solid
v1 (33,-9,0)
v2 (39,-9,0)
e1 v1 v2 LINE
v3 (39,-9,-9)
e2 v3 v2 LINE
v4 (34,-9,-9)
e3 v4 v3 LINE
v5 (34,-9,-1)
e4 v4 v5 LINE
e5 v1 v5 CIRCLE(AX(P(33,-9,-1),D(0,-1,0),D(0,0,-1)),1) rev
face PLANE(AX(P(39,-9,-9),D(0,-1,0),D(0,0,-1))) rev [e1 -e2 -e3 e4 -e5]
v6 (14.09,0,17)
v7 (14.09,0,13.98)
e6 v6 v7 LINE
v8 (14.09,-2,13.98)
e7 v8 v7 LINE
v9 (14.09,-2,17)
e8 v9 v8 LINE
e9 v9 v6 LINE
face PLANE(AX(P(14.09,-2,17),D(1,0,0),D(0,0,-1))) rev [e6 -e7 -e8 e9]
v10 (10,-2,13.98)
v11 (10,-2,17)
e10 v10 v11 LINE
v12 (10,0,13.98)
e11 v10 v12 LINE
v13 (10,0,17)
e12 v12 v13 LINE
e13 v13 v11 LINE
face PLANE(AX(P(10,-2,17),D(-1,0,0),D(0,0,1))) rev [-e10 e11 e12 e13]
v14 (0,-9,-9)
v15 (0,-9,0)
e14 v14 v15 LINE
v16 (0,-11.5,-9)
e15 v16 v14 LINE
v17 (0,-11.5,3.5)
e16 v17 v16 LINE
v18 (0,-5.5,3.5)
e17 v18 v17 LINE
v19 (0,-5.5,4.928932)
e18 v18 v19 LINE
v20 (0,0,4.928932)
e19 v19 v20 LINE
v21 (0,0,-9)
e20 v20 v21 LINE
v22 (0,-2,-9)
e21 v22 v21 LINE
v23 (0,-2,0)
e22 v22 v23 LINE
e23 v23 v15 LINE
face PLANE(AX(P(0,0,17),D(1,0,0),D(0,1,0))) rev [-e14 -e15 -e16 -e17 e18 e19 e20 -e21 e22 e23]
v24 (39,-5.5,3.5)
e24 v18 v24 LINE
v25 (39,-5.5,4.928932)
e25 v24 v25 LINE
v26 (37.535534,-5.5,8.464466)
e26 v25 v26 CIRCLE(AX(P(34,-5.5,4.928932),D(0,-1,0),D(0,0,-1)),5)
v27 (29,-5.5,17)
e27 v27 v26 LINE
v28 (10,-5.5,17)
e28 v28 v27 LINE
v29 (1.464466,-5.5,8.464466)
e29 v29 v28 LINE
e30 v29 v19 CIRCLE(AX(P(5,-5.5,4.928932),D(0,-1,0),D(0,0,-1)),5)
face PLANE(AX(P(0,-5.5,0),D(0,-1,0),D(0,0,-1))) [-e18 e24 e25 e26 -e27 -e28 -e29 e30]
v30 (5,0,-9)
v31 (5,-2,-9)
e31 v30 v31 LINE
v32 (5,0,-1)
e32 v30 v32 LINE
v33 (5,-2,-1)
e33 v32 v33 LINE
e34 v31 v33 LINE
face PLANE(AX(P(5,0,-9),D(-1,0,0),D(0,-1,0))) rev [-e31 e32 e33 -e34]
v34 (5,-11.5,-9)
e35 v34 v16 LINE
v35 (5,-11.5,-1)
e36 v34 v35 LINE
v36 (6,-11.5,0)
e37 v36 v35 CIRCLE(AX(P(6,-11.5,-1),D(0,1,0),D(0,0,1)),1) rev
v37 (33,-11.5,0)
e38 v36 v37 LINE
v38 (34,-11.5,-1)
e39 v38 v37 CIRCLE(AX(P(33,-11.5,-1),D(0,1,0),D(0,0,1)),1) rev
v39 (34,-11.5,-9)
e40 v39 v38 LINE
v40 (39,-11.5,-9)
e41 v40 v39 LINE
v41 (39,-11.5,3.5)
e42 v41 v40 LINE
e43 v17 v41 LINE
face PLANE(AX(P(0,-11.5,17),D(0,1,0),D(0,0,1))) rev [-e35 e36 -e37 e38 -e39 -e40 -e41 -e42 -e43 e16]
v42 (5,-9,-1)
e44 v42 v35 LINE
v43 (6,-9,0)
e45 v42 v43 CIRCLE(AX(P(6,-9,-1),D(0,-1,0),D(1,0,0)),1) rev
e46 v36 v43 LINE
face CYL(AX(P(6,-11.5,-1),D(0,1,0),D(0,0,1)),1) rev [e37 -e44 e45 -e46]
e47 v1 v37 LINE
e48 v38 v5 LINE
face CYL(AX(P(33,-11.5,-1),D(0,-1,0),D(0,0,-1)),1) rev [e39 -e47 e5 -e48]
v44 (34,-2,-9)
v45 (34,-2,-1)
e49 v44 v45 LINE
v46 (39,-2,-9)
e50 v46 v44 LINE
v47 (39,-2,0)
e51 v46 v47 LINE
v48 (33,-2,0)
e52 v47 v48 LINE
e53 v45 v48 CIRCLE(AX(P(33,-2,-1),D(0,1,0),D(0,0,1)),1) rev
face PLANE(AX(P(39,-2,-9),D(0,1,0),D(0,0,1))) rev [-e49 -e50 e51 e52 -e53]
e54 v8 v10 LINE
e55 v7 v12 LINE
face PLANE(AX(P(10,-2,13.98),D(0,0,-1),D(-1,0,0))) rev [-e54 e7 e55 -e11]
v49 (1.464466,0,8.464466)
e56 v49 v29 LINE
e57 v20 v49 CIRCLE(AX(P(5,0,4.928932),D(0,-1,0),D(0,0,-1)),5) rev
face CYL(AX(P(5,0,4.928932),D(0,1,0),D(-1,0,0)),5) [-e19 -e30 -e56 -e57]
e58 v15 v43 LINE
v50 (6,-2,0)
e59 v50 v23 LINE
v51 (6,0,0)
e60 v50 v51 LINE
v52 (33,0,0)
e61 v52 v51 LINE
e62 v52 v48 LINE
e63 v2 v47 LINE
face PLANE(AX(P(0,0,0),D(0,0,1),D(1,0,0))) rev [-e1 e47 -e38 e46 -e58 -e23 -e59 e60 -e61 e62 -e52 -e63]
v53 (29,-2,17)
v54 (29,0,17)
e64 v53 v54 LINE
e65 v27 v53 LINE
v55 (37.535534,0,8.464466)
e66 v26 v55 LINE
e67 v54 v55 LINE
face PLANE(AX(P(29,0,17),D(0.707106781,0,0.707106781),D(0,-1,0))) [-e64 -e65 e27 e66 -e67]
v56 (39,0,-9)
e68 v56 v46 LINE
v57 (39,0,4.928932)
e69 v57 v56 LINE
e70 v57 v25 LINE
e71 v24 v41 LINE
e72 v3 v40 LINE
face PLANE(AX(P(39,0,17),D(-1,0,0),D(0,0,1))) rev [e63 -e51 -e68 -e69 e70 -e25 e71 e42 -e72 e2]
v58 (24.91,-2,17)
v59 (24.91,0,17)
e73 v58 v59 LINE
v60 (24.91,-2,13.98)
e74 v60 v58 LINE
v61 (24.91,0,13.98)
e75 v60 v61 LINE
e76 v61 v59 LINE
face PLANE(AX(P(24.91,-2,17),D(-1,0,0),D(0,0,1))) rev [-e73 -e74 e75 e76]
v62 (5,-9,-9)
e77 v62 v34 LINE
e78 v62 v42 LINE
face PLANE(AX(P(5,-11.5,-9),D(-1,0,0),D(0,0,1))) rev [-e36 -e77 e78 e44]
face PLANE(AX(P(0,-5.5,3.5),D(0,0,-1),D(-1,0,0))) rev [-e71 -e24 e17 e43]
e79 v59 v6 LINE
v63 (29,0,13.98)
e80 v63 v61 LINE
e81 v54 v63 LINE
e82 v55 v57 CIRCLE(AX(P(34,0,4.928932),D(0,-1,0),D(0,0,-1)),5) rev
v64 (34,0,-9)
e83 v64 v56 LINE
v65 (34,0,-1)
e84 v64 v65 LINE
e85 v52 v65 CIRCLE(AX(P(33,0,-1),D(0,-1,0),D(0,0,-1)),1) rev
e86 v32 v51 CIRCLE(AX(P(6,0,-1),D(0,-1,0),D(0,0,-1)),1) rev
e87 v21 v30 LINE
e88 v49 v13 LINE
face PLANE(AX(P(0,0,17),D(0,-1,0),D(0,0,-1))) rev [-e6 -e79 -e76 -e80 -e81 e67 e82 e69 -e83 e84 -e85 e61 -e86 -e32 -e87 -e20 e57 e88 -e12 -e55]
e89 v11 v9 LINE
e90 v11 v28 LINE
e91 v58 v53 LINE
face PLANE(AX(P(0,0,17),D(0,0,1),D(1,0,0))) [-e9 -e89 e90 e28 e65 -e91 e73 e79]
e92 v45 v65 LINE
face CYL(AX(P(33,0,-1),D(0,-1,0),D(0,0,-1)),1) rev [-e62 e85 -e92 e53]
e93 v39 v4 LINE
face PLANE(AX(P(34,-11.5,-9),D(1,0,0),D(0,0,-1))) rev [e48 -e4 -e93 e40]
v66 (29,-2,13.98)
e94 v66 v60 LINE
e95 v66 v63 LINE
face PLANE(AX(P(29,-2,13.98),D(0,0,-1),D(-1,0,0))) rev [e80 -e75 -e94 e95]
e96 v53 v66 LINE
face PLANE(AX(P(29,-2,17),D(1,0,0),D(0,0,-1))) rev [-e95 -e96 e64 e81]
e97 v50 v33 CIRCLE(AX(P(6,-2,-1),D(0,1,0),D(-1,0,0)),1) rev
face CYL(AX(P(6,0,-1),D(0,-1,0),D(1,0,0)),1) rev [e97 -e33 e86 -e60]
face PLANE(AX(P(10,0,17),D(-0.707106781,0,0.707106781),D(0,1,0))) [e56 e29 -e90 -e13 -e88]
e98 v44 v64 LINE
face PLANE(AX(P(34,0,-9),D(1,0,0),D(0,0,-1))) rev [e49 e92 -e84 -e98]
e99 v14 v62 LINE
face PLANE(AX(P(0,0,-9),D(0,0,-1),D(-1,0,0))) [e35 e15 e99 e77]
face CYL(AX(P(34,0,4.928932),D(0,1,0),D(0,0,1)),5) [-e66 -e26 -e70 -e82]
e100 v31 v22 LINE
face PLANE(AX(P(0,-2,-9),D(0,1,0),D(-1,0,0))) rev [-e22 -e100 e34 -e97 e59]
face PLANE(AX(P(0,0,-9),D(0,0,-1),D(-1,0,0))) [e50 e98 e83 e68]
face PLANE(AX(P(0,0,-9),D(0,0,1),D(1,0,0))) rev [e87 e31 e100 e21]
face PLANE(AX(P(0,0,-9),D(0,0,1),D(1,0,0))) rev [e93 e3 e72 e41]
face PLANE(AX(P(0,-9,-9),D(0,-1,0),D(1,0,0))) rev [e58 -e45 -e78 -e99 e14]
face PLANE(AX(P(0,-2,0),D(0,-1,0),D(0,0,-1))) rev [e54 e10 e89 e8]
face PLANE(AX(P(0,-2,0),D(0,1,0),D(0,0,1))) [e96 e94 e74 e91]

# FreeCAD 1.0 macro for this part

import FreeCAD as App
import Part
import Sketcher
from FreeCAD import Vector
Q = App.Units.Quantity


def edges_at(feature, points):
    """Names of the edges that pass closest to the given points."""
    edges = feature.Shape.Edges
    near = lambda p: min(range(len(edges)), key=lambda i: edges[i].distToShape(Part.Vertex(*p))[0])
    return sorted({f"Edge{near(p) + 1}" for p in points})


def add_polygon(sketch, points):
    """Adds a closed chain of lines whose ends are joined by coincident constraints."""
    first, n = sketch.GeometryCount, len(points)
    for a, b in zip(points, points[1:] + points[:1]):
        sketch.addGeometry(Part.LineSegment(App.Vector(*a, 0), App.Vector(*b, 0)), False)
    for i in range(n):
        sketch.addConstraint(Sketcher.Constraint("Coincident", first + i, 2, first + (i + 1) % n, 1))

doc = App.newDocument("Part")
body = doc.addObject("PartDesign::Body", "Body")

# Sketch on XY plane
sketch1 = doc.addObject("Sketcher::SketchObject", "Sketch")
body.addObject(sketch1)
sketch1.AttachmentSupport = (doc.XY_Plane, [""])
sketch1.MapMode = "FlatFace"
add_polygon(sketch1, [(0, 0), (0, -12), (39, -12), (39, 0)])  # lines 0-3
sketch1.addConstraint([
    Sketcher.Constraint("Vertical", 0),
    Sketcher.Constraint("Horizontal", 1),
    Sketcher.Constraint("Vertical", 2),
    Sketcher.Constraint("Horizontal", 3),
    Sketcher.Constraint("Coincident", 3, 2, -1, 1),
    Sketcher.Constraint("DistanceX", 1, 1, 1, 2, Q("39 mm")),
    Sketcher.Constraint("DistanceY", 0, 2, 0, 1, Q("11.5 mm")),
])
pad1 = doc.addObject("PartDesign::Pad", "Pad")
body.addObject(pad1)
pad1.Profile = sketch1
pad1.Length = 17

# Sketch on XY plane
sketch2 = doc.addObject("Sketcher::SketchObject", "Sketch001")
body.addObject(sketch2)
sketch2.AttachmentSupport = (doc.XY_Plane, [""])
sketch2.MapMode = "FlatFace"
add_polygon(sketch2, [(5, -9), (5, -11.5), (0, -11.5), (0, -9)])  # lines 0-3
add_polygon(sketch2, [(5, 0), (5, -2), (0, -2), (0, 0)])  # lines 4-7
add_polygon(sketch2, [(39, -9), (39, -11.5), (34, -11.5), (34, -9)])  # lines 8-11
add_polygon(sketch2, [(39, 0), (39, -2), (34, -2), (34, 0)])  # lines 12-15
sketch2.addConstraint([
    Sketcher.Constraint("Vertical", 0),
    Sketcher.Constraint("Horizontal", 1),
    Sketcher.Constraint("Vertical", 2),
    Sketcher.Constraint("Horizontal", 3),
    Sketcher.Constraint("Vertical", 4),
    Sketcher.Constraint("Horizontal", 5),
    Sketcher.Constraint("Vertical", 6),
    Sketcher.Constraint("Horizontal", 7),
    Sketcher.Constraint("Vertical", 8),
    Sketcher.Constraint("Horizontal", 9),
    Sketcher.Constraint("Vertical", 10),
    Sketcher.Constraint("Horizontal", 11),
    Sketcher.Constraint("Vertical", 12),
    Sketcher.Constraint("Horizontal", 13),
    Sketcher.Constraint("Vertical", 14),
    Sketcher.Constraint("Horizontal", 15),
    Sketcher.Constraint("Coincident", 6, 2, -1, 1),
    Sketcher.Constraint("PointOnObject", 1, 2, -2),
    Sketcher.Constraint("PointOnObject", 14, 2, -1),
    Sketcher.Constraint("Horizontal", 1, 2, 8, 2),
    Sketcher.Constraint("Horizontal", 3, 2, 10, 2),
    Sketcher.Constraint("Horizontal", 5, 2, 12, 2),
    Sketcher.Constraint("Vertical", 3, 2, 4, 2),
    Sketcher.Constraint("Vertical", 11, 2, 12, 2),
    Sketcher.Constraint("Vertical", 10, 2, 13, 2),
    Sketcher.Constraint("Equal", 7, 9),
    Sketcher.Constraint("DistanceX", 1, 2, 1, 1, Q("5 mm")),
    Sketcher.Constraint("DistanceY", 4, 2, 4, 1, Q("2 mm")),
    Sketcher.Constraint("DistanceY", 0, 2, 0, 1, Q("2.5 mm")),
    Sketcher.Constraint("DistanceY", 2, 2, -1, 1, Q("9 mm")),
    Sketcher.Constraint("DistanceX", -1, 1, 8, 2, Q("39 mm")),
])
pad2 = doc.addObject("PartDesign::Pad", "Pad001")
body.addObject(pad2)
pad2.Profile = sketch2
pad2.Length = 9
pad2.Reversed = True
doc.recompute()

fillet = doc.addObject("PartDesign::Fillet", "Fillet")
body.addObject(fillet)
fillet.Base = (pad2, edges_at(pad2, [(34, -1, 0)]))
fillet.Radius = 1
doc.recompute()

fillet2 = doc.addObject("PartDesign::Fillet", "Fillet001")
body.addObject(fillet2)
fillet2.Base = (fillet, edges_at(fillet, [(5, -1, 0)]))
fillet2.Radius = 1
doc.recompute()

fillet3 = doc.addObject("PartDesign::Fillet", "Fillet002")
body.addObject(fillet3)
fillet3.Base = (fillet2, edges_at(fillet2, [(34, -10.25, 0)]))
fillet3.Radius = 1
doc.recompute()

fillet4 = doc.addObject("PartDesign::Fillet", "Fillet003")
body.addObject(fillet4)
fillet4.Base = (fillet3, edges_at(fillet3, [(5, -10.25, 0)]))
fillet4.Radius = 1
doc.recompute()

chamfer = doc.addObject("PartDesign::Chamfer", "Chamfer")
body.addObject(chamfer)
chamfer.Base = (fillet4, edges_at(fillet4, [(39, -5.75, 17)]))
chamfer.Size = 10
doc.recompute()

chamfer2 = doc.addObject("PartDesign::Chamfer", "Chamfer001")
body.addObject(chamfer2)
chamfer2.Base = (chamfer, edges_at(chamfer, [(0, -5.75, 17)]))
chamfer2.Size = 10

# Sketch on XZ plane
sketch3 = doc.addObject("Sketcher::SketchObject", "Sketch002")
body.addObject(sketch3)
sketch3.AttachmentSupport = (doc.XZ_Plane, [""])
sketch3.MapMode = "FlatFace"
add_polygon(sketch3, [(24.9, 14), (24.9, 17), (29, 17), (29, 14)])  # lines 0-3
add_polygon(sketch3, [(10, 14), (10, 17), (14.1, 17), (14.1, 14)])  # lines 4-7
sketch3.addConstraint([
    Sketcher.Constraint("Vertical", 0),
    Sketcher.Constraint("Horizontal", 1),
    Sketcher.Constraint("Vertical", 2),
    Sketcher.Constraint("Horizontal", 3),
    Sketcher.Constraint("Vertical", 4),
    Sketcher.Constraint("Horizontal", 5),
    Sketcher.Constraint("Vertical", 6),
    Sketcher.Constraint("Horizontal", 7),
    Sketcher.Constraint("Horizontal", 1, 2, 4, 2),
    Sketcher.Constraint("Horizontal", 3, 2, 6, 2),
    Sketcher.Constraint("Equal", 3, 5),
    Sketcher.Constraint("DistanceY", -1, 1, 0, 2, Q("17 mm")),
    Sketcher.Constraint("DistanceX", -1, 1, 1, 2, Q("29 mm")),
    Sketcher.Constraint("DistanceX", -1, 1, 4, 2, Q("10 mm")),
    Sketcher.Constraint("DistanceX", 1, 1, 1, 2, Q("4.09 mm")),
    Sketcher.Constraint("DistanceY", 0, 1, 0, 2, Q("3.02 mm")),
])
pocket1 = doc.addObject("PartDesign::Pocket", "Pocket")
body.addObject(pocket1)
pocket1.Profile = sketch3
pocket1.Length = 2
pocket1.Reversed = True

# Sketch on XZ plane
sketch4 = doc.addObject("Sketcher::SketchObject", "Sketch003")
body.addObject(sketch4)
sketch4.AttachmentSupport = (doc.XZ_Plane, [""])
sketch4.MapMode = "FlatFace"
sketch4.AttachmentOffset = App.Placement(Vector(0, 0, 11.5), App.Rotation())
add_polygon(sketch4, [(0, 25), (0, 4), (45, 4), (45, 25)])  # lines 0-3
sketch4.addConstraint([
    Sketcher.Constraint("Vertical", 0),
    Sketcher.Constraint("Horizontal", 1),
    Sketcher.Constraint("Vertical", 2),
    Sketcher.Constraint("Horizontal", 3),
    Sketcher.Constraint("PointOnObject", 0, 2, -2),
    Sketcher.Constraint("DistanceY", -1, 1, 0, 2, Q("3.5 mm")),
    Sketcher.Constraint("DistanceY", 0, 2, 0, 1, Q("21.662699 mm")),
    Sketcher.Constraint("DistanceX", 1, 1, 1, 2, Q("45.213078 mm")),
])
pocket2 = doc.addObject("PartDesign::Pocket", "Pocket001")
body.addObject(pocket2)
pocket2.Profile = sketch4
pocket2.Length = 6
doc.recompute()

fillet5 = doc.addObject("PartDesign::Fillet", "Fillet004")
body.addObject(fillet5)
fillet5.Base = (pocket2, edges_at(pocket2, [(0, -2.75, 7)]))
fillet5.Radius = 5
doc.recompute()

fillet6 = doc.addObject("PartDesign::Fillet", "Fillet005")
body.addObject(fillet6)
fillet6.Base = (fillet5, edges_at(fillet5, [(39, -2.75, 7)]))
fillet6.Radius = 5

doc.recompute()
